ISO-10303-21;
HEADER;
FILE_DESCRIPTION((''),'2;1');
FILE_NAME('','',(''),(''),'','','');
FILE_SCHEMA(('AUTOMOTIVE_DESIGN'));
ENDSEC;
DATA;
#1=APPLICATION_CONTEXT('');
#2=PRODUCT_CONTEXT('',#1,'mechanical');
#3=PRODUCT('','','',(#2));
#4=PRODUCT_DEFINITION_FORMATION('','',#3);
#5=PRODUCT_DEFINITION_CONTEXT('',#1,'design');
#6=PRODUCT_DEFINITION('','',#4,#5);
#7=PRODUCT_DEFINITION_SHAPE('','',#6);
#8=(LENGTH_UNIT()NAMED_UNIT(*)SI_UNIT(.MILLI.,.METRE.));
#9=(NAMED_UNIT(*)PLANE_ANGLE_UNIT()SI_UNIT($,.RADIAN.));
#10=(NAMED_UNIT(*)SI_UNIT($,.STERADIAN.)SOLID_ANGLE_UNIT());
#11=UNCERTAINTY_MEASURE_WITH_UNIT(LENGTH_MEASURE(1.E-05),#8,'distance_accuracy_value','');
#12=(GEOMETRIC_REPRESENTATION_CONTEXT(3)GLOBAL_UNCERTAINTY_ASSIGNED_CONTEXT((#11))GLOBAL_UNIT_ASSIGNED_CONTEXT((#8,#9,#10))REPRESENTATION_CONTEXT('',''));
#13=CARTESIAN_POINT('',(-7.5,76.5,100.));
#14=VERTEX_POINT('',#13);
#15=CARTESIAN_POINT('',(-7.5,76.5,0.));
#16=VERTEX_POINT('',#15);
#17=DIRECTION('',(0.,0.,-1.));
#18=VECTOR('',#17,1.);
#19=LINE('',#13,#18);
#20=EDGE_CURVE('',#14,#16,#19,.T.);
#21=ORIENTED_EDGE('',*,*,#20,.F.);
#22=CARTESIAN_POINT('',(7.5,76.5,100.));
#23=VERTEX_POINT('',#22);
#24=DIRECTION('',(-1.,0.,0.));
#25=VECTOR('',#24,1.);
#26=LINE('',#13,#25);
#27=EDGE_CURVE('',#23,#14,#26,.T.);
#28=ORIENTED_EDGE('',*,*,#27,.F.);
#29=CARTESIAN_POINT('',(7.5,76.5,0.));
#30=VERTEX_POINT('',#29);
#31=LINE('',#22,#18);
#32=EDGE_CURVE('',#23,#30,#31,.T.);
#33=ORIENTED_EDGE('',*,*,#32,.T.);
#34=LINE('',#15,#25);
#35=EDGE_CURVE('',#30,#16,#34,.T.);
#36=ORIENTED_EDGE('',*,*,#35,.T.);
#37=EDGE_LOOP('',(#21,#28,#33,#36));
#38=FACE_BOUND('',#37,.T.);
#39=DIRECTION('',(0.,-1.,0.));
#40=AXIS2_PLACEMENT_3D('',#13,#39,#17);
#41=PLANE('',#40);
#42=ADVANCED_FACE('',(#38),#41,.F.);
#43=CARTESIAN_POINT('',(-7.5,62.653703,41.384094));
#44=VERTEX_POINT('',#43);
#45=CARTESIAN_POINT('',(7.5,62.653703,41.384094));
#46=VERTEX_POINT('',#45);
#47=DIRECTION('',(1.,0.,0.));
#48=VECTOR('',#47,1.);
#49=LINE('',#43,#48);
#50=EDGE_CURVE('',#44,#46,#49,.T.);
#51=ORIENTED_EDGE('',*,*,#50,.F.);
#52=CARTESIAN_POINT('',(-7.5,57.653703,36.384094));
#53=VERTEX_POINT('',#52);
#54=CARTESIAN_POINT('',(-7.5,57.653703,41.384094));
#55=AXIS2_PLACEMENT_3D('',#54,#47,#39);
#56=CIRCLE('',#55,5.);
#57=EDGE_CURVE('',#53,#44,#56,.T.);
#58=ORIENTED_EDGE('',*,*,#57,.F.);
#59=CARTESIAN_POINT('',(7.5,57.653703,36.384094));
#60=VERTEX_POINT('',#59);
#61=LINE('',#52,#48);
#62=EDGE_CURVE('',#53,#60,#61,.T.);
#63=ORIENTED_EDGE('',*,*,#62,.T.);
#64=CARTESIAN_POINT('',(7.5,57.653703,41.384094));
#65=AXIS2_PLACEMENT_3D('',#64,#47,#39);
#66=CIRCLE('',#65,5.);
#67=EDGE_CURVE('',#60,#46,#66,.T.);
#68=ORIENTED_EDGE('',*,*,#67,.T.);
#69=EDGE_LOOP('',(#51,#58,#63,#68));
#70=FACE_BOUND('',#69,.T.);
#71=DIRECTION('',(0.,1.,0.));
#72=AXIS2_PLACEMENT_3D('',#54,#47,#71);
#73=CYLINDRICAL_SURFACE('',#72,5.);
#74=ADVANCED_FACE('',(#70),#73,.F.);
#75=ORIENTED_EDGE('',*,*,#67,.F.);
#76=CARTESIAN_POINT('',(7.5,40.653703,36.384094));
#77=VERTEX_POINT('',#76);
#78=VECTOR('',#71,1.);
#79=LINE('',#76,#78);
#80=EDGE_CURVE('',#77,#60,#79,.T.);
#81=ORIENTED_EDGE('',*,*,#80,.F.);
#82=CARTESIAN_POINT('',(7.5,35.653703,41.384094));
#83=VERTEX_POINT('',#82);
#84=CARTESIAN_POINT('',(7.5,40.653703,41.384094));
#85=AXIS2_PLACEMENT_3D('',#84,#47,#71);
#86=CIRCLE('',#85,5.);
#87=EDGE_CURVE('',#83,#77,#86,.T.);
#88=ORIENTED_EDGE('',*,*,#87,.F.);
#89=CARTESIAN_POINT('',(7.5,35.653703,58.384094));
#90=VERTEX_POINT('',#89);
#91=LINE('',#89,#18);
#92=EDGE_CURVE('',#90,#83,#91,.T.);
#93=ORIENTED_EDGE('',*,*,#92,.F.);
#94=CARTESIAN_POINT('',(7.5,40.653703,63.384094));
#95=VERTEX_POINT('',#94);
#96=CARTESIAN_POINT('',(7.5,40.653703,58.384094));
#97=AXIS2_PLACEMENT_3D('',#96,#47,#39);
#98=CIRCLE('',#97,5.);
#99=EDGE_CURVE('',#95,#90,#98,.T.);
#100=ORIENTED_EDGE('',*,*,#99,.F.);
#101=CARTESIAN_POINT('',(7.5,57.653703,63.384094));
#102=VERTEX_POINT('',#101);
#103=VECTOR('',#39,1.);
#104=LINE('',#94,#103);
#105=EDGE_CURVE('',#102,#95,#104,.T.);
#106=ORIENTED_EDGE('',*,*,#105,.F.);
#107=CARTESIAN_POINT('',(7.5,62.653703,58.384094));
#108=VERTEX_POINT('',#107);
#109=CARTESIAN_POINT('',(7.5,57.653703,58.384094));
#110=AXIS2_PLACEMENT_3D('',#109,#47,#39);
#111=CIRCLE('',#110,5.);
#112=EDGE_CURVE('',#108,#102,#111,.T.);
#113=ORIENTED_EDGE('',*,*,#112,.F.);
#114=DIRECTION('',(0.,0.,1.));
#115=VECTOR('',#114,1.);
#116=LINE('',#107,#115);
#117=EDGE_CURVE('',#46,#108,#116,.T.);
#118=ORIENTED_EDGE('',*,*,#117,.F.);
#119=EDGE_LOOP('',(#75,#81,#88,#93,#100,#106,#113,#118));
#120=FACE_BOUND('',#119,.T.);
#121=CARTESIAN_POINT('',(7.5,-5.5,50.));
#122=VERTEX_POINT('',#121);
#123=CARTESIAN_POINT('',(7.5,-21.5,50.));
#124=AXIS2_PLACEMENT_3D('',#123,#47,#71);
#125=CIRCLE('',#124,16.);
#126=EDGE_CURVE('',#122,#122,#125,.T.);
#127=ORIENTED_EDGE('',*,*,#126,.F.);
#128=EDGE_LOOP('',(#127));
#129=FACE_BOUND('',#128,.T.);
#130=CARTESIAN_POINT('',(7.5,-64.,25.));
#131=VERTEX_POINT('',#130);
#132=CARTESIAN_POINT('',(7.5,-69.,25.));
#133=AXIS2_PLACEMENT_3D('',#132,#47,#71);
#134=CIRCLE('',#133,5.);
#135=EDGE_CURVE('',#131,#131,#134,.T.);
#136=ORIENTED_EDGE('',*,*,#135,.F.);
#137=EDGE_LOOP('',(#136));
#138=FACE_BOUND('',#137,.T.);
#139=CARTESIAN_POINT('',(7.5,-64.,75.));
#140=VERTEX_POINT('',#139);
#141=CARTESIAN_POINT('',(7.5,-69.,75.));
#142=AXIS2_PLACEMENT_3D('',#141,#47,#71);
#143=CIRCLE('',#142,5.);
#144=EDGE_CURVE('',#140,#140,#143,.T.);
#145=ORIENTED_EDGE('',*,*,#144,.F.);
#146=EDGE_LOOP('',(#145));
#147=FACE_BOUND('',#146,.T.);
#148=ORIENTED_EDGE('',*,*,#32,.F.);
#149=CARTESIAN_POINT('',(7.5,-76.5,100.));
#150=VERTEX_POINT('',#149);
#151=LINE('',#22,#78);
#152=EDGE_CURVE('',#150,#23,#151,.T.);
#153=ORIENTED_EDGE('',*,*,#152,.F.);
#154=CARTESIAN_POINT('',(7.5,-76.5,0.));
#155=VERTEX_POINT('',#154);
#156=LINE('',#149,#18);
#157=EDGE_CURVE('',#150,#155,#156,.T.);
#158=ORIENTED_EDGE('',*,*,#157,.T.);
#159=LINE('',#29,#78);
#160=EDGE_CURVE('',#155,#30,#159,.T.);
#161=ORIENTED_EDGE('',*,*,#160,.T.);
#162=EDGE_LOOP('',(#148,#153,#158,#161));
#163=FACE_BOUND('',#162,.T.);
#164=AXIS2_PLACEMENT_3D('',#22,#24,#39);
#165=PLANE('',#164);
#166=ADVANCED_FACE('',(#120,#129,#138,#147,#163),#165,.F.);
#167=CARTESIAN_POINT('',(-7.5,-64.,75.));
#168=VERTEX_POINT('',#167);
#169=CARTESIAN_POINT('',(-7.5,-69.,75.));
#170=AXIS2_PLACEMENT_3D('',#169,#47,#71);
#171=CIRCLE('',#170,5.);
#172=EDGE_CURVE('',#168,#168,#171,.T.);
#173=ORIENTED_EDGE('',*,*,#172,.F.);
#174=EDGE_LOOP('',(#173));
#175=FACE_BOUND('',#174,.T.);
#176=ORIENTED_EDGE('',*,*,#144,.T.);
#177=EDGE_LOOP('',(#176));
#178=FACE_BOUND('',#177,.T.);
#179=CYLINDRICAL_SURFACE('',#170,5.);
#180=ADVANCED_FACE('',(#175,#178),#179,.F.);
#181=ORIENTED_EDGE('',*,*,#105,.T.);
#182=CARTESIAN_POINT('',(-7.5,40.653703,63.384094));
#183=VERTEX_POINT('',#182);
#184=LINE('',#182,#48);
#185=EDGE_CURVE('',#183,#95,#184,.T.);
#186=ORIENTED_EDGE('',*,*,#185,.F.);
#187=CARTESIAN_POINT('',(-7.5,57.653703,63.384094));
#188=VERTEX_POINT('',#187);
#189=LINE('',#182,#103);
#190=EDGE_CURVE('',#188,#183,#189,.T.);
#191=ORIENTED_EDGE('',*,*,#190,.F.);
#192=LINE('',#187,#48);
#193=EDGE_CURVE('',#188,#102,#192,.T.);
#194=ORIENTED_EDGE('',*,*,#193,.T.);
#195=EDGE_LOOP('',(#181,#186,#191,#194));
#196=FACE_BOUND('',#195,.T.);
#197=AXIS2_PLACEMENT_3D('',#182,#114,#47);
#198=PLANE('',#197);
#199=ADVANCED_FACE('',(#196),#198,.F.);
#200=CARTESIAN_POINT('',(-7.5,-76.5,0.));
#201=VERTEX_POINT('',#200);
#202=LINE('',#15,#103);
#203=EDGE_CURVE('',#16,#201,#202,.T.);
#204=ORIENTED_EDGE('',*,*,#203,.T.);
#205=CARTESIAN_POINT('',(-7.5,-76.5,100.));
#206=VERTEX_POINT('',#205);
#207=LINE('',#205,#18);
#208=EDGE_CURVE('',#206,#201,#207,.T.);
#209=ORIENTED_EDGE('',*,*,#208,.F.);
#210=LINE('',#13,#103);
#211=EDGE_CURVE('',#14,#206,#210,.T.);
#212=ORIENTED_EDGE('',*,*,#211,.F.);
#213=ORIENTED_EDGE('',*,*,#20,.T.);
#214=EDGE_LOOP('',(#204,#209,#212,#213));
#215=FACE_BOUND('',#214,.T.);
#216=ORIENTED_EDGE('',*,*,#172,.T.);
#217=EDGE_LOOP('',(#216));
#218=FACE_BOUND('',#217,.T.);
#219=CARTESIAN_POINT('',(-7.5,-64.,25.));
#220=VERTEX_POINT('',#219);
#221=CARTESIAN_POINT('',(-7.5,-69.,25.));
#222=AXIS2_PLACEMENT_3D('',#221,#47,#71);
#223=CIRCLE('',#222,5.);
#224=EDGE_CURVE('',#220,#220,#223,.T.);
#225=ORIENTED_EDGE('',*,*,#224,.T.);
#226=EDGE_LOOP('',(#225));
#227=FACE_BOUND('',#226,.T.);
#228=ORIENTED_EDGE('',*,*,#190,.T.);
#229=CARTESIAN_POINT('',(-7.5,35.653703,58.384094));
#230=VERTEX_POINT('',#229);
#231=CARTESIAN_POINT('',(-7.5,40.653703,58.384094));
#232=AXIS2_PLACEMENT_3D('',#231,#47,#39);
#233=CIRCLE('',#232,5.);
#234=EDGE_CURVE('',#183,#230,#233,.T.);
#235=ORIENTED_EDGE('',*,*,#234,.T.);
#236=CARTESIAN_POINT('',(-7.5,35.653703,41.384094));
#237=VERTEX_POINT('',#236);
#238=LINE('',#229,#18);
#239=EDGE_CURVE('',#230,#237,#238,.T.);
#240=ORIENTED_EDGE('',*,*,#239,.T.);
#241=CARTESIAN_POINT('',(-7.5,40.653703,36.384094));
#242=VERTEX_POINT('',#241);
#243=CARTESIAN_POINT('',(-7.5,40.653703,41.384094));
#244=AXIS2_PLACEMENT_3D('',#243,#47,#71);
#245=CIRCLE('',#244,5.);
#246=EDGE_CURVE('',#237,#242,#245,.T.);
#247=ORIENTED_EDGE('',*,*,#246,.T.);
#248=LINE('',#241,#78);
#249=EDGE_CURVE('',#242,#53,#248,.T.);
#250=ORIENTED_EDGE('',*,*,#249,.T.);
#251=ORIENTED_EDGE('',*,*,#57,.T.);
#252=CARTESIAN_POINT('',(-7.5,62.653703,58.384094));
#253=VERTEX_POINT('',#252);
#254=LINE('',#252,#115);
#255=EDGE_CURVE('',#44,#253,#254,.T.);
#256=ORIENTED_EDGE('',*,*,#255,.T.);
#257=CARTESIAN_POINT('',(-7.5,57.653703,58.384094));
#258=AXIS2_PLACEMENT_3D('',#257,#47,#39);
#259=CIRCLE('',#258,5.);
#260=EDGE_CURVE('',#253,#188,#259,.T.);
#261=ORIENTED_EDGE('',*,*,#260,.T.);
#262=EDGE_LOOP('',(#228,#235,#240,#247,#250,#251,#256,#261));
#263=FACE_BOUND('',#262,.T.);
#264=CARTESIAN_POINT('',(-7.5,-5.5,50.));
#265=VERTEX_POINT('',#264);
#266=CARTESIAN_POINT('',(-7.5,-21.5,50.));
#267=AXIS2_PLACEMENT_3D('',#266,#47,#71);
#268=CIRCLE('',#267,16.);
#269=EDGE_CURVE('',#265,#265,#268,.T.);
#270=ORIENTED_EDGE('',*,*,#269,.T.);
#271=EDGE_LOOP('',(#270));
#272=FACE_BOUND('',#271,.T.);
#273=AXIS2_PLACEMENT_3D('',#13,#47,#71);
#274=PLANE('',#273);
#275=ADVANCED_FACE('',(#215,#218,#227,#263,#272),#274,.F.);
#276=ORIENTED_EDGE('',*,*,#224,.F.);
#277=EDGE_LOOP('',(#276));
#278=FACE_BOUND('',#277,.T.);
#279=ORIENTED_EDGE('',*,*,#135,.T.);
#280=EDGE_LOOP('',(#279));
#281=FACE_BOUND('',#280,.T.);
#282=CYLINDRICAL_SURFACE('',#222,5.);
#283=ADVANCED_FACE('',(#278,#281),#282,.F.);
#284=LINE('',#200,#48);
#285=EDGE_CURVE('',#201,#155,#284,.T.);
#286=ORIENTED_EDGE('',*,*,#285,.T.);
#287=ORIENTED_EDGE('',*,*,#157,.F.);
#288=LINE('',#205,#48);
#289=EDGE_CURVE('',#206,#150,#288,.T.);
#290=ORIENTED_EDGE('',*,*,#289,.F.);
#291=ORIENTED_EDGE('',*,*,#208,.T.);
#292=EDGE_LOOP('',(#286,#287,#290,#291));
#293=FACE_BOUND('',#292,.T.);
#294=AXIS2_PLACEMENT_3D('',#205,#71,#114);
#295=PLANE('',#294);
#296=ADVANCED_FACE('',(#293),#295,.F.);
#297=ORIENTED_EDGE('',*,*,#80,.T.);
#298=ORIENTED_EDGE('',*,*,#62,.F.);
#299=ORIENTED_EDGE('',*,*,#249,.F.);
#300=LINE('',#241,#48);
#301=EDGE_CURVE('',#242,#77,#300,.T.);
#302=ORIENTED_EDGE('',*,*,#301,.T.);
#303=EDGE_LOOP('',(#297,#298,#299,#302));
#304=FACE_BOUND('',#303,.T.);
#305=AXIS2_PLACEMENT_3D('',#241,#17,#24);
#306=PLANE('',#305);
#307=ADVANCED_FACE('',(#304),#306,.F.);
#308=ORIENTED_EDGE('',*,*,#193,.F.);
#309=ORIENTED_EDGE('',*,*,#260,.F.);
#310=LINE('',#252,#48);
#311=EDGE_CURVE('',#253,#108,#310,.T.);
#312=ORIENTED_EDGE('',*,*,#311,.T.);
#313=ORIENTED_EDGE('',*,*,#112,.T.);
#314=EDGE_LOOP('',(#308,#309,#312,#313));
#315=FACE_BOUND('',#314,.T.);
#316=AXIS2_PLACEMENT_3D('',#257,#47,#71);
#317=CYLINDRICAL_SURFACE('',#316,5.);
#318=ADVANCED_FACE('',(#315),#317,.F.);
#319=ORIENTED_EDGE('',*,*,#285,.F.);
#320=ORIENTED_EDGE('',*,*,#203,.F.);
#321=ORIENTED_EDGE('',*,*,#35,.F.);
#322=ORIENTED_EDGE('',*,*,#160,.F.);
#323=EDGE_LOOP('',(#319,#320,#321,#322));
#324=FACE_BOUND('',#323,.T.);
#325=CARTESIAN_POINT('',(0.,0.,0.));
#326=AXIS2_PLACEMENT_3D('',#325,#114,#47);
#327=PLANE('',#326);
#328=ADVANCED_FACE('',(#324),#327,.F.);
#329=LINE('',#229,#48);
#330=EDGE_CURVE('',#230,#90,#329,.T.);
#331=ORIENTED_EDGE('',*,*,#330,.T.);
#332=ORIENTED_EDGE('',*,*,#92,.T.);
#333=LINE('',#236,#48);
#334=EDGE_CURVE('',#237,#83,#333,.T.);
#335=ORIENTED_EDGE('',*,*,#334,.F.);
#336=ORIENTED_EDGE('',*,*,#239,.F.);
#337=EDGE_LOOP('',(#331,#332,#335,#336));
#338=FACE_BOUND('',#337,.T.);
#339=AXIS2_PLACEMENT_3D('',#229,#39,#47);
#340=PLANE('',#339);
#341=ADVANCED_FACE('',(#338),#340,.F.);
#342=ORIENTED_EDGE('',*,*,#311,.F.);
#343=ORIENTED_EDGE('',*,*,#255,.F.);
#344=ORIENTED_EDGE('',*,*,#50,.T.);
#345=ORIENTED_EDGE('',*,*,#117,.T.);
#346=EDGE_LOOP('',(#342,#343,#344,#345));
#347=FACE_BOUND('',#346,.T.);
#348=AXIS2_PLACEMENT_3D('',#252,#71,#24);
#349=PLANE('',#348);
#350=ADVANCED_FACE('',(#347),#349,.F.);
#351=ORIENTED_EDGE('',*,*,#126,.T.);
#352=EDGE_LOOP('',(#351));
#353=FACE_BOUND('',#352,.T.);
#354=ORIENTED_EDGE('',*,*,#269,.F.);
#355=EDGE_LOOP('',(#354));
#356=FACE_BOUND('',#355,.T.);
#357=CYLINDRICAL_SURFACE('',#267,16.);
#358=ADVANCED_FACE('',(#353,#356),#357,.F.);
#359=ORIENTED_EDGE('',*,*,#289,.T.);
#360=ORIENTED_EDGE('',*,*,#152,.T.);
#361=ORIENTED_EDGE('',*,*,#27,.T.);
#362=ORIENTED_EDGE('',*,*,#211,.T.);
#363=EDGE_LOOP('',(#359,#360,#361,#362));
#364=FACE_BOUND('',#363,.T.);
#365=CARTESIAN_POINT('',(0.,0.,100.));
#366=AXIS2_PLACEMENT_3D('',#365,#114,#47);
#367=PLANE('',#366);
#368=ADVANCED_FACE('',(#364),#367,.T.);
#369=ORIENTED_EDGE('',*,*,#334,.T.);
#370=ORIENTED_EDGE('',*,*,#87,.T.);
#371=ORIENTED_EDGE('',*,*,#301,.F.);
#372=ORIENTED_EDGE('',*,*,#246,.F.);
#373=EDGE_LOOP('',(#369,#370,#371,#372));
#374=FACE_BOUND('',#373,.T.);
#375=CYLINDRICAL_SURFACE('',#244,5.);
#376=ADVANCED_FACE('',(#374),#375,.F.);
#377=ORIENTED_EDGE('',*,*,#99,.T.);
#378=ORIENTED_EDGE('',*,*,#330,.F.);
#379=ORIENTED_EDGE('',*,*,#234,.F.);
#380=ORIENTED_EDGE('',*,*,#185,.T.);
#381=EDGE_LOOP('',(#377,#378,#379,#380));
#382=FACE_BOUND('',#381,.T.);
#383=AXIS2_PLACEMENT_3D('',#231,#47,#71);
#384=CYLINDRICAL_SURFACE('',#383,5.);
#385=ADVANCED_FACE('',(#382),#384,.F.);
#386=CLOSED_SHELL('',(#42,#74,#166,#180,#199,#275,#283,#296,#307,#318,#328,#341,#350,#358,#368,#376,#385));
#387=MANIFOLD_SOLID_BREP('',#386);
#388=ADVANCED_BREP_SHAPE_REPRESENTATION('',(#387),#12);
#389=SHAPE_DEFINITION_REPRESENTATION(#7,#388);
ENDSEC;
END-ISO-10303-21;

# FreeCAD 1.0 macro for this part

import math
import FreeCAD as App
import Part
import Sketcher

V = App.Vector
Q = App.Units.Quantity

doc = App.newDocument("Part")
params = doc.addObject("Spreadsheet::Sheet", "Params")
for row, (alias, value) in enumerate([
    ("sketch1_width", "15 mm"),
    ("sketch1_height", "153 mm"),
    ("pad1_length", "100 mm"),
    ("sketch2_diameter", "10 mm"),
    ("sketch3_diameter", "32 mm"),
    ("sketch3_radius", "5 mm"),
    ("sketch3_width", "17 mm"),
], start=1):
    params.set(f"A{row}", alias)
    params.set(f"B{row}", "=" + value)
    params.setAlias(f"B{row}", alias)

body = doc.addObject("PartDesign::Body", "Body")

sketch1 = body.newObject("Sketcher::SketchObject", "Sketch")
sketch1.AttachmentSupport = (doc.getObject("XY_Plane"), [""])
sketch1.MapMode = "FlatFace"
sketch1.addGeometry(Part.LineSegment(V(-8, 76, 0), V(-8, -76, 0)), False)
sketch1.addGeometry(Part.LineSegment(V(-8, -76, 0), V(8, -76, 0)), False)
sketch1.addGeometry(Part.LineSegment(V(8, -76, 0), V(8, 76, 0)), False)
sketch1.addGeometry(Part.LineSegment(V(8, 76, 0), V(-8, 76, 0)), False)
sketch1.addConstraint(Sketcher.Constraint("Coincident", 0, 2, 1, 1))
sketch1.addConstraint(Sketcher.Constraint("Coincident", 1, 2, 2, 1))
sketch1.addConstraint(Sketcher.Constraint("Coincident", 2, 2, 3, 1))
sketch1.addConstraint(Sketcher.Constraint("Coincident", 3, 2, 0, 1))
sketch1.addConstraint(Sketcher.Constraint("Vertical", 0))
sketch1.addConstraint(Sketcher.Constraint("Horizontal", 1))
sketch1.addConstraint(Sketcher.Constraint("Vertical", 2))
sketch1.addConstraint(Sketcher.Constraint("Horizontal", 3))
sketch1.addConstraint(Sketcher.Constraint("Symmetric", 0, 2, 2, 2, -1, 1))
sketch1.addConstraint(Sketcher.Constraint("DistanceX", 1, 1, 1, 2, Q("15 mm")))
sketch1.addConstraint(Sketcher.Constraint("DistanceY", 0, 2, 0, 1, Q("153 mm")))
sketch1.setExpression("Constraints[9]", "Params.sketch1_width")
sketch1.setExpression("Constraints[10]", "Params.sketch1_height")
pad1 = body.newObject("PartDesign::Pad", "Pad")
pad1.Profile = sketch1
pad1.setExpression("Length", "Params.pad1_length")

sketch2 = body.newObject("Sketcher::SketchObject", "Sketch001")
sketch2.AttachmentSupport = (doc.getObject("YZ_Plane"), [""])
sketch2.MapMode = "FlatFace"
sketch2.AttachmentOffset = App.Placement(V(0, 0, 7.5), App.Rotation())
sketch2.addGeometry(Part.Circle(V(-69, 75, 0), V(0, 0, 1), 5), False)
sketch2.addGeometry(Part.Circle(V(-69, 25, 0), V(0, 0, 1), 5), False)
sketch2.addConstraint(Sketcher.Constraint("Equal", 0, 1))
sketch2.addConstraint(Sketcher.Constraint("Vertical", 0, 3, 1, 3))
sketch2.addConstraint(Sketcher.Constraint("Diameter", 0, Q("10 mm")))
sketch2.addConstraint(Sketcher.Constraint("DistanceX", 0, 3, -1, 1, Q("69 mm")))
sketch2.addConstraint(Sketcher.Constraint("DistanceY", -1, 1, 0, 3, Q("75 mm")))
sketch2.addConstraint(Sketcher.Constraint("DistanceY", -1, 1, 1, 3, Q("25 mm")))
sketch2.setExpression("Constraints[2]", "Params.sketch2_diameter")
pocket1 = body.newObject("PartDesign::Pocket", "Pocket")
pocket1.Profile = sketch2
pocket1.Type = "ThroughAll"

sketch3 = body.newObject("Sketcher::SketchObject", "Sketch002")
sketch3.AttachmentSupport = (doc.getObject("YZ_Plane"), [""])
sketch3.MapMode = "FlatFace"
sketch3.AttachmentOffset = App.Placement(V(0, 0, 7.5), App.Rotation())
sketch3.addGeometry(Part.Circle(V(-22, 50, 0), V(0, 0, 1), 16), False)
sketch3.addGeometry(Part.LineSegment(V(36, 58, 0), V(36, 41, 0)), False)
sketch3.addGeometry(Part.ArcOfCircle(Part.Circle(V(41, 41, 0), V(0, 0, 1), 5), math.radians(180), math.radians(270)), False)
sketch3.addGeometry(Part.LineSegment(V(41, 36, 0), V(58, 36, 0)), False)
sketch3.addGeometry(Part.ArcOfCircle(Part.Circle(V(58, 41, 0), V(0, 0, 1), 5), math.radians(-90), math.radians(0)), False)
sketch3.addGeometry(Part.LineSegment(V(63, 41, 0), V(63, 58, 0)), False)
sketch3.addGeometry(Part.ArcOfCircle(Part.Circle(V(58, 58, 0), V(0, 0, 1), 5), math.radians(0), math.radians(90)), False)
sketch3.addGeometry(Part.LineSegment(V(58, 63, 0), V(41, 63, 0)), False)
sketch3.addGeometry(Part.ArcOfCircle(Part.Circle(V(41, 58, 0), V(0, 0, 1), 5), math.radians(90), math.radians(180)), False)
sketch3.addConstraint(Sketcher.Constraint("Tangent", 1, 2, 2, 1))
sketch3.addConstraint(Sketcher.Constraint("Tangent", 2, 2, 3, 1))
sketch3.addConstraint(Sketcher.Constraint("Tangent", 3, 2, 4, 1))
sketch3.addConstraint(Sketcher.Constraint("Tangent", 4, 2, 5, 1))
sketch3.addConstraint(Sketcher.Constraint("Tangent", 5, 2, 6, 1))
sketch3.addConstraint(Sketcher.Constraint("Tangent", 6, 2, 7, 1))
sketch3.addConstraint(Sketcher.Constraint("Tangent", 7, 2, 8, 1))
sketch3.addConstraint(Sketcher.Constraint("Tangent", 8, 2, 1, 1))
sketch3.addConstraint(Sketcher.Constraint("Vertical", 1))
sketch3.addConstraint(Sketcher.Constraint("Horizontal", 3))
sketch3.addConstraint(Sketcher.Constraint("Vertical", 5))
sketch3.addConstraint(Sketcher.Constraint("Horizontal", 7))
sketch3.addConstraint(Sketcher.Constraint("Equal", 2, 4))
sketch3.addConstraint(Sketcher.Constraint("Equal", 4, 6))
sketch3.addConstraint(Sketcher.Constraint("Equal", 6, 8))
sketch3.addConstraint(Sketcher.Constraint("Equal", 7, 1))
sketch3.addConstraint(Sketcher.Constraint("Diameter", 0, Q("32 mm")))
sketch3.addConstraint(Sketcher.Constraint("Radius", 2, Q("5 mm")))
sketch3.addConstraint(Sketcher.Constraint("DistanceX", 3, 1, 3, 2, Q("17 mm")))
sketch3.addConstraint(Sketcher.Constraint("DistanceY", -1, 1, 0, 3, Q("50 mm")))
sketch3.addConstraint(Sketcher.Constraint("DistanceX", 0, 3, -1, 1, Q("21.5 mm")))
sketch3.addConstraint(Sketcher.Constraint("DistanceX", -1, 1, 2, 3, Q("40.653703 mm")))
sketch3.addConstraint(Sketcher.Constraint("DistanceY", -1, 1, 2, 3, Q("41.384094 mm")))
sketch3.setExpression("Constraints[16]", "Params.sketch3_diameter")
sketch3.setExpression("Constraints[17]", "Params.sketch3_radius")
sketch3.setExpression("Constraints[18]", "Params.sketch3_width")
pocket2 = body.newObject("PartDesign::Pocket", "Pocket001")
pocket2.Profile = sketch3
pocket2.Type = "ThroughAll"

doc.recompute()
